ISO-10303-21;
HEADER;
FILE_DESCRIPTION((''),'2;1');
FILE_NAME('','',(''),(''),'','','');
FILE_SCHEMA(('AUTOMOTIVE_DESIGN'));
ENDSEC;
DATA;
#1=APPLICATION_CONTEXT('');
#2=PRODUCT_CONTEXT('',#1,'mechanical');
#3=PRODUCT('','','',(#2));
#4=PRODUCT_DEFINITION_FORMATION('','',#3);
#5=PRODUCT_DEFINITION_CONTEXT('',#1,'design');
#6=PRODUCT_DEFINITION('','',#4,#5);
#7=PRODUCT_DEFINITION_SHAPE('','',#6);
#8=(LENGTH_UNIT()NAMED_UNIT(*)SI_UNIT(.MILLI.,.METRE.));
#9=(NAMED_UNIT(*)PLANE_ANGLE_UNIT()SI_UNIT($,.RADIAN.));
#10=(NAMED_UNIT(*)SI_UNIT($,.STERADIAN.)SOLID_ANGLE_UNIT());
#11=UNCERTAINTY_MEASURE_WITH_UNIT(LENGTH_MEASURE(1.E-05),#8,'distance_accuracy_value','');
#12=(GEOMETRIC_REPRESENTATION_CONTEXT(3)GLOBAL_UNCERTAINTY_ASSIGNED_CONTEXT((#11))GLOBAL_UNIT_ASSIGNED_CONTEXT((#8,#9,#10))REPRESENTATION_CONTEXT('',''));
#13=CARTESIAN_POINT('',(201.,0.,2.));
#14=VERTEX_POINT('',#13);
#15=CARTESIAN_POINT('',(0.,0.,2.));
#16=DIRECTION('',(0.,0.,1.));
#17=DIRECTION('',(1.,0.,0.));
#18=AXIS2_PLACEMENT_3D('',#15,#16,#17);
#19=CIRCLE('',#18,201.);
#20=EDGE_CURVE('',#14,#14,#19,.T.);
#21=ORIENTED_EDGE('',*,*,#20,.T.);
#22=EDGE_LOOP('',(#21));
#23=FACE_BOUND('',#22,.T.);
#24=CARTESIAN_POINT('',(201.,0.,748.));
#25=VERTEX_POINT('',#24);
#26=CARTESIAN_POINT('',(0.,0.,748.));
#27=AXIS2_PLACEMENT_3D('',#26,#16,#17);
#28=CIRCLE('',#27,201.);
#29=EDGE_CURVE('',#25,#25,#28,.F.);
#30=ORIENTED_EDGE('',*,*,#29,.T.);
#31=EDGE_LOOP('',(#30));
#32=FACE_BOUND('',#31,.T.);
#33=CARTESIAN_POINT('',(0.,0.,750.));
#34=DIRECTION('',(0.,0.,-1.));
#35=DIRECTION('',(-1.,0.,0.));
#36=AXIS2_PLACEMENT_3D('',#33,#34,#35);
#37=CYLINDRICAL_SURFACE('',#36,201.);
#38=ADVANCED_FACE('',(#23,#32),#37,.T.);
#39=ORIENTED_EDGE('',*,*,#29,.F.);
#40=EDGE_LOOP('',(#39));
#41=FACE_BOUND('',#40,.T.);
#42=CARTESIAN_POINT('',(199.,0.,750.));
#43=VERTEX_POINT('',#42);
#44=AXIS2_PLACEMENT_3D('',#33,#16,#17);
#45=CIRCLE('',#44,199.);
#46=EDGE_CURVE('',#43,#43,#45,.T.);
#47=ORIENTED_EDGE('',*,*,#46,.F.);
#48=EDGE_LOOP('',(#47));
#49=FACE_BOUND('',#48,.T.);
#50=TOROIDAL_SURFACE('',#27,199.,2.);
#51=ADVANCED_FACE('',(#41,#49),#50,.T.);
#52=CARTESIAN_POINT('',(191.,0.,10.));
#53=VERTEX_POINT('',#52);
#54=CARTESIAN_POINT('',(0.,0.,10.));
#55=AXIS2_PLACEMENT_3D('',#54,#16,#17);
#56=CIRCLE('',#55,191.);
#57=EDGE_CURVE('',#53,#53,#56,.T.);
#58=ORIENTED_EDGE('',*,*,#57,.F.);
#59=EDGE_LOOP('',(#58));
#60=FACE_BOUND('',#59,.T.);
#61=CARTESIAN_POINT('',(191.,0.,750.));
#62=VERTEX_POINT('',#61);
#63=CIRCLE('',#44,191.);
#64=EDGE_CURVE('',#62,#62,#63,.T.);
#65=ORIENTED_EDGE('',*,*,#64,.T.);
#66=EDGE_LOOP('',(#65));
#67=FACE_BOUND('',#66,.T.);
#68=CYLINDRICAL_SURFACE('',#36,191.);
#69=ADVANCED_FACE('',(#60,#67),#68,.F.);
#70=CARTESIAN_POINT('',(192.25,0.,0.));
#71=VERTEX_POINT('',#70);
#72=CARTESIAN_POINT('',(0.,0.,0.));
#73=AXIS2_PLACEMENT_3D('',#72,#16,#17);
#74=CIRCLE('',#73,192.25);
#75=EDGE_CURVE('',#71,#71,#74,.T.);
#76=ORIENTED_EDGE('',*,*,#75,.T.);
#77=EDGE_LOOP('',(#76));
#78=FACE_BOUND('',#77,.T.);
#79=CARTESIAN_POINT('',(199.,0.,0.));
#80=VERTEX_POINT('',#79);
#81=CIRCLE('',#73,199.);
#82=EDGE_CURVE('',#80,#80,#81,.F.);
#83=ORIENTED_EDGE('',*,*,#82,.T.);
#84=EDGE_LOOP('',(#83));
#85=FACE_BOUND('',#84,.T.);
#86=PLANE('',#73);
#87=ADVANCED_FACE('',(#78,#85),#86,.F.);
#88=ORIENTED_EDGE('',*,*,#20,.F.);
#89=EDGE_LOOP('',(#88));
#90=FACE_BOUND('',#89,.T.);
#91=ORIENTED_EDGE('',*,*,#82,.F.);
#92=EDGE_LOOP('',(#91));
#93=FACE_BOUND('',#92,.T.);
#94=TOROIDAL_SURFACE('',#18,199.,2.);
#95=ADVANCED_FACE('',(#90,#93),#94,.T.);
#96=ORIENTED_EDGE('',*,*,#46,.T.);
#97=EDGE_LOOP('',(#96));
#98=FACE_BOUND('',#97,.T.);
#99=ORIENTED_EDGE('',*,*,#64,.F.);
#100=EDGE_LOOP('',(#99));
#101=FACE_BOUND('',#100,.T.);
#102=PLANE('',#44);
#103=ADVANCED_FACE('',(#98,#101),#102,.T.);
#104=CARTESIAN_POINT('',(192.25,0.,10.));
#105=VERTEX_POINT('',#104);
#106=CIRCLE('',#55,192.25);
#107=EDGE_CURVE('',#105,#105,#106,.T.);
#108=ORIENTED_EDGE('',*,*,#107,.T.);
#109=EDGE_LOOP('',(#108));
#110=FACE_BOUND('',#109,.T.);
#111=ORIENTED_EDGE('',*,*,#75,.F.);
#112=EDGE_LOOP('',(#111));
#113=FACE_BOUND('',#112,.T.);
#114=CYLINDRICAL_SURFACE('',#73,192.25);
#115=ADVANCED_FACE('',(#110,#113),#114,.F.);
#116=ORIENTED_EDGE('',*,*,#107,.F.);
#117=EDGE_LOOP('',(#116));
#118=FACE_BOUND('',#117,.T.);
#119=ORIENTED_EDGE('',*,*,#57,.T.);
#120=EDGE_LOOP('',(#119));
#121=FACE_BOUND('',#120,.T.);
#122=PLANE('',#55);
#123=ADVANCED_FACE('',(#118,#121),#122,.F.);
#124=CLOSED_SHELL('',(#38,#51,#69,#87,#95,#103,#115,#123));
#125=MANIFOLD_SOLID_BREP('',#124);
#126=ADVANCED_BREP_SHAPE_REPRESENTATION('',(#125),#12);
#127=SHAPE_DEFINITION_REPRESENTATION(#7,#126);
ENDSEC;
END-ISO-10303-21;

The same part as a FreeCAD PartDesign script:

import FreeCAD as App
import Part
import Sketcher
from FreeCAD import Vector
Q = App.Units.Quantity


def edges_at(feature, points):
    """Names of the edges that pass closest to the given points."""
    edges = feature.Shape.Edges
    near = lambda p: min(range(len(edges)), key=lambda i: edges[i].distToShape(Part.Vertex(*p))[0])
    return sorted({f"Edge{near(p) + 1}" for p in points})


def faces_at(feature, points):
    """Names of the faces that lie closest to the given points."""
    faces = feature.Shape.Faces
    near = lambda p: min(range(len(faces)), key=lambda i: faces[i].distToShape(Part.Vertex(*p))[0])
    return sorted({f"Face{near(p) + 1}" for p in points})

doc = App.newDocument("Part")
params = doc.addObject("Spreadsheet::Sheet", "Params")
for row, (alias, value) in enumerate([
    ("sketch1_diameter", "402 mm"),
    ("pad1_length", "750 mm"),
    ("thickness_wall", "10 mm"),
    ("sketch2_diameter", "384.5 mm"),
    ("fillet_radius", "2 mm"),
    ("fillet2_radius", "2 mm"),
], start=1):
    params.set(f"A{row}", alias)
    params.set(f"B{row}", "=" + value)
    params.setAlias(f"B{row}", alias)

body = doc.addObject("PartDesign::Body", "Body")

# Sketch on XY plane
sketch1 = body.newObject("Sketcher::SketchObject", "Sketch")
sketch1.AttachmentSupport = (doc.getObject("XY_Plane"), [""])
sketch1.MapMode = "FlatFace"
sketch1.addGeometry(Part.Circle(Vector(0, 0, 0), Vector(0, 0, 1), 201), False)
sketch1.addConstraint([
    Sketcher.Constraint("Coincident", 0, 3, -1, 1),
    Sketcher.Constraint("Diameter", 0, Q("402 mm")),
])
sketch1.setExpression("Constraints[1]", "Params.sketch1_diameter")
pad1 = body.newObject("PartDesign::Pad", "Pad")
pad1.Profile = sketch1
pad1.setExpression("Length", "Params.pad1_length")
doc.recompute()

thickness = body.newObject("PartDesign::Thickness", "Thickness")
thickness.Base = (pad1, faces_at(pad1, [(0, 0, 750)]))
thickness.setExpression("Value", "Params.thickness_wall")
thickness.Reversed = True
thickness.Join = "Intersection"

# Sketch on XY plane
sketch2 = body.newObject("Sketcher::SketchObject", "Sketch001")
sketch2.AttachmentSupport = (doc.getObject("XY_Plane"), [""])
sketch2.MapMode = "FlatFace"
sketch2.AttachmentOffset = App.Placement(Vector(0, 0, 10), App.Rotation())
sketch2.addGeometry(Part.Circle(Vector(0, 0, 0), Vector(0, 0, 1), 192.25), False)
sketch2.addConstraint([
    Sketcher.Constraint("Coincident", 0, 3, -1, 1),
    Sketcher.Constraint("Diameter", 0, Q("384.5 mm")),
])
sketch2.setExpression("Constraints[1]", "Params.sketch2_diameter")
pocket1 = body.newObject("PartDesign::Pocket", "Pocket")
pocket1.Profile = sketch2
pocket1.Type = "ThroughAll"
doc.recompute()

fillet = body.newObject("PartDesign::Fillet", "Fillet")
fillet.Base = (pocket1, edges_at(pocket1, [(-201, 0, 0)]))
fillet.setExpression("Radius", "Params.fillet_radius")
doc.recompute()

fillet2 = body.newObject("PartDesign::Fillet", "Fillet001")
fillet2.Base = (fillet, edges_at(fillet, [(-201, 0, 750)]))
fillet2.setExpression("Radius", "Params.fillet2_radius")

doc.recompute()
